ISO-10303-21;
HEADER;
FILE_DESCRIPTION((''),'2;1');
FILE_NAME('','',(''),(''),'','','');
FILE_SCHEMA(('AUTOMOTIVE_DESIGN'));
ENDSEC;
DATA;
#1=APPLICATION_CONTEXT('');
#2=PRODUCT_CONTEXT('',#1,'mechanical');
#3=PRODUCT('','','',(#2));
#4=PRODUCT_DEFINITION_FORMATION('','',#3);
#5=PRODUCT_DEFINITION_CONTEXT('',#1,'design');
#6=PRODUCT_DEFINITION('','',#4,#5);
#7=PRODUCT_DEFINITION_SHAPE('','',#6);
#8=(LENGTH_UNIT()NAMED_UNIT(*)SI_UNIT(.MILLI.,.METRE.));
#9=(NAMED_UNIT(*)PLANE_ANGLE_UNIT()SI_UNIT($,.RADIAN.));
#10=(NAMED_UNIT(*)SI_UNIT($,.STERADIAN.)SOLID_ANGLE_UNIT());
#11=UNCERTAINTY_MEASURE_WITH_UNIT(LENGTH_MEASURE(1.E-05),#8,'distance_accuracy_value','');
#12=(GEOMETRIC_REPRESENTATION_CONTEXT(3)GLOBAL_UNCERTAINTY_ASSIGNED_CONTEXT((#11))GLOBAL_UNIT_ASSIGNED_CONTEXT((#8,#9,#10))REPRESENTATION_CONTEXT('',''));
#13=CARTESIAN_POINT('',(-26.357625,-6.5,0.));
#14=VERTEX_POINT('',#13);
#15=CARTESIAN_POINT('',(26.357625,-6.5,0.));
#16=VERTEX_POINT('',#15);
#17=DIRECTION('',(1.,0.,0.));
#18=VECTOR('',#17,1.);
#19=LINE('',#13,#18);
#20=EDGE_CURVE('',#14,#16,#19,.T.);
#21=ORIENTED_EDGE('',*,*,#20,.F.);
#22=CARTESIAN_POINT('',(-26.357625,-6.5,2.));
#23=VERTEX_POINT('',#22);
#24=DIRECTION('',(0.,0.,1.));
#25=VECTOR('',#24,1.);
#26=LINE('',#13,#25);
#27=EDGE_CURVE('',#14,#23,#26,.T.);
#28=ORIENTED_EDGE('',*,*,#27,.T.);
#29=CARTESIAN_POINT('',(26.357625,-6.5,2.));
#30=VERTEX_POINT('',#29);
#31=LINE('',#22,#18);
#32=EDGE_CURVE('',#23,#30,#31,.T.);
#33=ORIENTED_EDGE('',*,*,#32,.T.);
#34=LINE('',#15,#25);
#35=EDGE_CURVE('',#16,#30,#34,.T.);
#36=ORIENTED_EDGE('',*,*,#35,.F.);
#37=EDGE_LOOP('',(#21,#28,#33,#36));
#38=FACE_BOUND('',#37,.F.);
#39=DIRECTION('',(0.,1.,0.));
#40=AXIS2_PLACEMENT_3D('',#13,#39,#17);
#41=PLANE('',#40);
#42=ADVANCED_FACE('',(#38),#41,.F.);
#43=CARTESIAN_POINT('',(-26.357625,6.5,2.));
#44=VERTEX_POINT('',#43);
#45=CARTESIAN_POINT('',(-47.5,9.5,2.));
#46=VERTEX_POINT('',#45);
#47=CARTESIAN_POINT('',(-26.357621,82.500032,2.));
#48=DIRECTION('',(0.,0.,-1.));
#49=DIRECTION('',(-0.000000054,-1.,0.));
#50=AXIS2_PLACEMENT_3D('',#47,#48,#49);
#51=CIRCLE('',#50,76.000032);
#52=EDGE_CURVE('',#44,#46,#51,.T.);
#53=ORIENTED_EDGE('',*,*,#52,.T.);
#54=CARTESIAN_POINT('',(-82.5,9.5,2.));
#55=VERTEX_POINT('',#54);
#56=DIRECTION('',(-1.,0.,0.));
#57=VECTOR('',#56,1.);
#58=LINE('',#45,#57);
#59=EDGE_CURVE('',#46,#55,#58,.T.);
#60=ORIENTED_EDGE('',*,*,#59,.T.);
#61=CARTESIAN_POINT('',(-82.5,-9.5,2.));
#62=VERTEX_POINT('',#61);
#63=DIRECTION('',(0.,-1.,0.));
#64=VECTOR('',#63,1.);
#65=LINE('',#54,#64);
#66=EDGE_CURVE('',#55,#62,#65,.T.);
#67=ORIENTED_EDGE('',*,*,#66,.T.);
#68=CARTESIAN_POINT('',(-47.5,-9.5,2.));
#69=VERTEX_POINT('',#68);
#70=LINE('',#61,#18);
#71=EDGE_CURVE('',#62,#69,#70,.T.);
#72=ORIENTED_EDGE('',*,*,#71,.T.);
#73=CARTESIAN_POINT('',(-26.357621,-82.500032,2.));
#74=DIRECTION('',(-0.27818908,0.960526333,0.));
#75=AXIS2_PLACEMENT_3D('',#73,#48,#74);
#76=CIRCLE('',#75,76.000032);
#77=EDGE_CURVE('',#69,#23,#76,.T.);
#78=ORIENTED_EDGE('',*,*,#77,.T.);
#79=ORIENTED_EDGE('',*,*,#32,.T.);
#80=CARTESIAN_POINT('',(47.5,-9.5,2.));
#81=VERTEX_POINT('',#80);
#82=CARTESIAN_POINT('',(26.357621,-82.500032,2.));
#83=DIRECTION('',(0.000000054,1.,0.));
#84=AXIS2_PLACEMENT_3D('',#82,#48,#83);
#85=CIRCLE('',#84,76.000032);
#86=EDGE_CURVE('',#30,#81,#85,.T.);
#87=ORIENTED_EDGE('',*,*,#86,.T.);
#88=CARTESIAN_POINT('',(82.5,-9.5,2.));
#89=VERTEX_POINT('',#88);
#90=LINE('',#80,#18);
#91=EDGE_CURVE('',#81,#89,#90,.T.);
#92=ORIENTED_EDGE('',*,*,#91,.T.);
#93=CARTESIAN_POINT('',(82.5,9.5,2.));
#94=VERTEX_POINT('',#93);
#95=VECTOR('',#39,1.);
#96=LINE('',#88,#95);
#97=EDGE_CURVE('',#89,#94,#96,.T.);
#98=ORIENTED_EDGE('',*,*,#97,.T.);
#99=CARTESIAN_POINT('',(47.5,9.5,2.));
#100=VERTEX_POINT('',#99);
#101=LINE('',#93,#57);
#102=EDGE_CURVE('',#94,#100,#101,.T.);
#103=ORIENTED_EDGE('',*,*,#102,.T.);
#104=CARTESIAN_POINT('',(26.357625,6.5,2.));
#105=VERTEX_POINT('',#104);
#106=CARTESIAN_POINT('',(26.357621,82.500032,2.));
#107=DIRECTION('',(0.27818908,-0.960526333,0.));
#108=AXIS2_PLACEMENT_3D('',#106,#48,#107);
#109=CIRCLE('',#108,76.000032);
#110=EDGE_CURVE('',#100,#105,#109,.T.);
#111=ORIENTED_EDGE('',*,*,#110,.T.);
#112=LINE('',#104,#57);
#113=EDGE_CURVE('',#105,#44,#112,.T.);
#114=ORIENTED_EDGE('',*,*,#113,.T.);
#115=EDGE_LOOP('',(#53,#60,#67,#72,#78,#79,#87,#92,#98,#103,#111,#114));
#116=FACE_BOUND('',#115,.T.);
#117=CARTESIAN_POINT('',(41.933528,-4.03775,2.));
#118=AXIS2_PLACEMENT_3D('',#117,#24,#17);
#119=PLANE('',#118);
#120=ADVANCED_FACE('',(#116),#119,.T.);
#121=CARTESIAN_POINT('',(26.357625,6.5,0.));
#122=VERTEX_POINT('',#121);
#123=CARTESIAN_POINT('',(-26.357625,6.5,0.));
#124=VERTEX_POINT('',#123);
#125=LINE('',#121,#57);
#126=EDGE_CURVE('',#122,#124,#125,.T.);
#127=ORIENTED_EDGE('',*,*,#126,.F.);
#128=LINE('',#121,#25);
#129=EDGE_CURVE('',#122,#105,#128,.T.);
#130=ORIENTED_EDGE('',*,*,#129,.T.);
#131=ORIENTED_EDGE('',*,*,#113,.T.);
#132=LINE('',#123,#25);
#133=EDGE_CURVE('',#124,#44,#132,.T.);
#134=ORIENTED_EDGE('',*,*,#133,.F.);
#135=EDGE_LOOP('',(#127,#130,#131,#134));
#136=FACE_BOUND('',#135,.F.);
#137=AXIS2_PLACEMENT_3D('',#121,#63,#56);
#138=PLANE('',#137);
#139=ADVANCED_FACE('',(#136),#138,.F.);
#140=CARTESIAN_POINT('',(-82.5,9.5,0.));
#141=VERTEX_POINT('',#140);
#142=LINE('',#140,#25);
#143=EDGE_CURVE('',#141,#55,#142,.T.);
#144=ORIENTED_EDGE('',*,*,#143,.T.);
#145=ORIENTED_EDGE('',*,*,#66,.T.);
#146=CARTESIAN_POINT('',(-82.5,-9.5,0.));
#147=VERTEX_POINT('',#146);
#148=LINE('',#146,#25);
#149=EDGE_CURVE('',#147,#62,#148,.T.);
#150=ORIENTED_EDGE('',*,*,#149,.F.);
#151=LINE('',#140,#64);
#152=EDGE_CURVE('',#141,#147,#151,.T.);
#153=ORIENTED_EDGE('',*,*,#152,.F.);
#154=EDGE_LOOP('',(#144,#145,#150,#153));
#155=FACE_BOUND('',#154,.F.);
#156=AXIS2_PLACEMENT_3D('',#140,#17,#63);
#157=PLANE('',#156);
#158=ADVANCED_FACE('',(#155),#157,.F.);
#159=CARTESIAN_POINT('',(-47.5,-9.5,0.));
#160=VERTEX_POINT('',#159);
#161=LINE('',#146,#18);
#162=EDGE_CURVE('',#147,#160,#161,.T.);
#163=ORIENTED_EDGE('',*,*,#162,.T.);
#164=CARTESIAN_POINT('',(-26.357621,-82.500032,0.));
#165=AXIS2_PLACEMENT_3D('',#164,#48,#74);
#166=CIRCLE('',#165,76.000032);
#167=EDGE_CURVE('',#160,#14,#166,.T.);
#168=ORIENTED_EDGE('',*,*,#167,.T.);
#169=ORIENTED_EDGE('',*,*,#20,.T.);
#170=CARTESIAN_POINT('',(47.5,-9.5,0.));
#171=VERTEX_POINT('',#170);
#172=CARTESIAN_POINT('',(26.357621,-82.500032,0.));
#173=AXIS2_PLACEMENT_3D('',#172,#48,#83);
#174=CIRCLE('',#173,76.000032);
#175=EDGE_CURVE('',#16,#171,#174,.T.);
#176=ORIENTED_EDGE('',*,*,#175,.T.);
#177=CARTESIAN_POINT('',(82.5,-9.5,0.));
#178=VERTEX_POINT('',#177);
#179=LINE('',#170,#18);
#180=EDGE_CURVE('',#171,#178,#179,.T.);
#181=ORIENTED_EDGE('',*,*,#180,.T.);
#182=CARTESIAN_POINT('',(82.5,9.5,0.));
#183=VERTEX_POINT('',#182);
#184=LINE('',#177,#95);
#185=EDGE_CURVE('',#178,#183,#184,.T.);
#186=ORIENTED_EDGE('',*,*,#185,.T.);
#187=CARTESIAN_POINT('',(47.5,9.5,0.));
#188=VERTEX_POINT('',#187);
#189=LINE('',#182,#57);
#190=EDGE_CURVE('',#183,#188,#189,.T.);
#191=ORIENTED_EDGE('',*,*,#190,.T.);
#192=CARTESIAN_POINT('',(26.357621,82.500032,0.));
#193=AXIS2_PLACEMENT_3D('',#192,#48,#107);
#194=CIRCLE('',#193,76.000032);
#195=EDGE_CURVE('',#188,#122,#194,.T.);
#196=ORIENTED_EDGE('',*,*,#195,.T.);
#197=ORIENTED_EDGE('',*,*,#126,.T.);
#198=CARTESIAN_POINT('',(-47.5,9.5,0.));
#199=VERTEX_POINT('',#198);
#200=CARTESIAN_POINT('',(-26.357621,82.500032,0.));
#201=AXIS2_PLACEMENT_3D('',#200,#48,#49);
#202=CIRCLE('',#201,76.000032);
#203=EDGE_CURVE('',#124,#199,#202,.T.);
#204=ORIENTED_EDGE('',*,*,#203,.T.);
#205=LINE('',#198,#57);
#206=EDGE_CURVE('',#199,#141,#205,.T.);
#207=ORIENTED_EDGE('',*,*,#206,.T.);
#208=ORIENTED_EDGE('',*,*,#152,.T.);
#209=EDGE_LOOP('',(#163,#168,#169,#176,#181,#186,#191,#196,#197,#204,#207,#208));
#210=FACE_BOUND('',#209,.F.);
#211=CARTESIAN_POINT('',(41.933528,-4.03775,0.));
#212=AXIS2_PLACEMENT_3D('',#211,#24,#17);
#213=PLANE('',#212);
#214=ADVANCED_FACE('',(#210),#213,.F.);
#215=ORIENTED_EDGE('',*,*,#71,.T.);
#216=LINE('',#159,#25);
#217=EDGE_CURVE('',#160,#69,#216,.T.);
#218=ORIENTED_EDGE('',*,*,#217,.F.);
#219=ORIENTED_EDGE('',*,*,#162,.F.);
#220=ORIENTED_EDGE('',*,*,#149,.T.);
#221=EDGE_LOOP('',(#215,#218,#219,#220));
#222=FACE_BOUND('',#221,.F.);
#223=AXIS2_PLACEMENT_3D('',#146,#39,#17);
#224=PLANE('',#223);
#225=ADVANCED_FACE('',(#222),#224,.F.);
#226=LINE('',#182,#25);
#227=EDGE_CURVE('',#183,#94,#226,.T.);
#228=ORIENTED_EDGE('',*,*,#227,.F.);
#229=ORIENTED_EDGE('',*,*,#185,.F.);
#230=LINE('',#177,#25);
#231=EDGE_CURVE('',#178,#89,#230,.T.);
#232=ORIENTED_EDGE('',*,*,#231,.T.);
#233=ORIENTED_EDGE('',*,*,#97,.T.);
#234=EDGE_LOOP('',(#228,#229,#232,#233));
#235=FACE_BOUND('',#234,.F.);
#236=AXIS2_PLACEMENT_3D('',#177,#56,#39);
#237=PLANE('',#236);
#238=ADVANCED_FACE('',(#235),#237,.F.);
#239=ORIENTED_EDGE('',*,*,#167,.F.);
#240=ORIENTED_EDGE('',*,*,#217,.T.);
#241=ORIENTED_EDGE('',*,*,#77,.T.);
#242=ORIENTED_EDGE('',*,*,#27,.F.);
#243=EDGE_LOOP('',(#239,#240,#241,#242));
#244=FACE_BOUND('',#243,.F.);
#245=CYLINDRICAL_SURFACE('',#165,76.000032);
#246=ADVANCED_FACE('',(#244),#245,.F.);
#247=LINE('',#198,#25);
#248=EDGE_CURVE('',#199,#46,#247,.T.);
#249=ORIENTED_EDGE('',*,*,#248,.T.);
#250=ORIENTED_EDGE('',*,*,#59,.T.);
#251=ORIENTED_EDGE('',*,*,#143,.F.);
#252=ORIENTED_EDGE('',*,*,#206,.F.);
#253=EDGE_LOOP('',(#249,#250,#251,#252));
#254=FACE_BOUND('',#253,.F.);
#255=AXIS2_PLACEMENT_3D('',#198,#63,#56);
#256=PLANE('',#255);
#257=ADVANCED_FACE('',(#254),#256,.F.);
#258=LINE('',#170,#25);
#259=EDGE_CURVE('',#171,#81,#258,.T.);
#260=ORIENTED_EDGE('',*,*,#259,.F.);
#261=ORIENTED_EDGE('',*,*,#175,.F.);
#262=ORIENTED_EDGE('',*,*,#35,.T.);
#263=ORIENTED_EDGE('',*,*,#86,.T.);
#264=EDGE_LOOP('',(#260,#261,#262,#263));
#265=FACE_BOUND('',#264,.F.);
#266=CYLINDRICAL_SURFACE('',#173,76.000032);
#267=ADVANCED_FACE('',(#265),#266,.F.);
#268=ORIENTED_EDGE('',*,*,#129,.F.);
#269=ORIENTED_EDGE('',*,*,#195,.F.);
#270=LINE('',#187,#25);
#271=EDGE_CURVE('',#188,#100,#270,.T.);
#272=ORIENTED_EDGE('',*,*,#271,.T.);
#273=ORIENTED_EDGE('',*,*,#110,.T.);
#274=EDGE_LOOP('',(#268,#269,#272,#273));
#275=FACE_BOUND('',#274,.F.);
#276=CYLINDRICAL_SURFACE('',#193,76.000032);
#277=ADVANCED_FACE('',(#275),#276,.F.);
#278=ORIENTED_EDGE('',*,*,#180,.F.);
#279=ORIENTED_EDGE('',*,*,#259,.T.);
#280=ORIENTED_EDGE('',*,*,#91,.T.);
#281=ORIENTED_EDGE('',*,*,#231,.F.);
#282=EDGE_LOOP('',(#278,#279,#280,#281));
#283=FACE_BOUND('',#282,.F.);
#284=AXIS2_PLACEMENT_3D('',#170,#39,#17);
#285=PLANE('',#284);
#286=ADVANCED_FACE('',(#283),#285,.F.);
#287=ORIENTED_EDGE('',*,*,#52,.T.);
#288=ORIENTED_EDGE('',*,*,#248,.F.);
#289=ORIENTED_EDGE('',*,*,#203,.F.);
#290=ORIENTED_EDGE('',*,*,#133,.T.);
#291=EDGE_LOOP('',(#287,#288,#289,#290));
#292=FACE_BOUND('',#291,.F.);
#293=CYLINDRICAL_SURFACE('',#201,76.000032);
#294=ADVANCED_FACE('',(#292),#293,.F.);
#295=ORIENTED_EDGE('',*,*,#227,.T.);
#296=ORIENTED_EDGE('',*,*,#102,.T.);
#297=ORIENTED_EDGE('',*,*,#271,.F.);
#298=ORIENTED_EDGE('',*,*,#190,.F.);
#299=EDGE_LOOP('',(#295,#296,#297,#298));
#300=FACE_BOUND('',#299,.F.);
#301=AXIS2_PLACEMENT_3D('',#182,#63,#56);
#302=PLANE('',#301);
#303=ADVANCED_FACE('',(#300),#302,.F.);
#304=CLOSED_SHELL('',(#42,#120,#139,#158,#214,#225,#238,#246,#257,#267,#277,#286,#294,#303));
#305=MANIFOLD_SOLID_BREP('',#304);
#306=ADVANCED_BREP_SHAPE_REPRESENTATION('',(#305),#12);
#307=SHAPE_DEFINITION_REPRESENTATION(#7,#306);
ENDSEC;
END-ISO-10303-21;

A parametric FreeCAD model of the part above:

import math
import FreeCAD as App
import Part
import Sketcher
Q = App.Units.Quantity

doc = App.newDocument("Part")
body = doc.addObject("PartDesign::Body", "Body")

# Sketch on XY plane
sketch1 = body.newObject("Sketcher::SketchObject", "Sketch")
sketch1.AttachmentSupport = (doc.getObject("XY_Plane"), [""])
sketch1.MapMode = "FlatFace"
sketch1.addGeometry([
    Part.ArcOfCircle(Part.Circle(App.Vector(26.357621, -82.500032, 0), App.Vector(0, 0, 1), 76.000032), math.radians(73.847847), math.radians(89.999997)),  # 0
    Part.LineSegment(App.Vector(47.5, -9.5, 0), App.Vector(82.5, -9.5, 0)),  # 1
    Part.LineSegment(App.Vector(82.5, -9.5, 0), App.Vector(82.5, 9.5, 0)),  # 2
    Part.LineSegment(App.Vector(82.5, 9.5, 0), App.Vector(47.5, 9.5, 0)),  # 3
    Part.ArcOfCircle(Part.Circle(App.Vector(26.357621, 82.500032, 0), App.Vector(0, 0, 1), 76.000032), math.radians(-89.999997), math.radians(-73.847847)),  # 4
    Part.LineSegment(App.Vector(26.357625, 6.5, 0), App.Vector(-26.357625, 6.5, 0)),  # 5
    Part.ArcOfCircle(Part.Circle(App.Vector(-26.357621, 82.500032, 0), App.Vector(0, 0, 1), 76.000032), math.radians(-106.152153), math.radians(-90.000003)),  # 6
    Part.LineSegment(App.Vector(-47.5, 9.5, 0), App.Vector(-82.5, 9.5, 0)),  # 7
    Part.LineSegment(App.Vector(-82.5, 9.5, 0), App.Vector(-82.5, -9.5, 0)),  # 8
    Part.LineSegment(App.Vector(-82.5, -9.5, 0), App.Vector(-47.5, -9.5, 0)),  # 9
    Part.ArcOfCircle(Part.Circle(App.Vector(-26.357621, -82.500032, 0), App.Vector(0, 0, 1), 76.000032), math.radians(90.000003), math.radians(106.152153)),  # 10
    Part.LineSegment(App.Vector(-26.357625, -6.5, 0), App.Vector(26.357625, -6.5, 0)),  # 11
], False)
sketch1.addConstraint([
    Sketcher.Constraint("Coincident", 0, 1, 1, 1),
    Sketcher.Constraint("Coincident", 1, 2, 2, 1),
    Sketcher.Constraint("Coincident", 2, 2, 3, 1),
    Sketcher.Constraint("Coincident", 3, 2, 4, 2),
    Sketcher.Constraint("Tangent", 4, 1, 5, 1),
    Sketcher.Constraint("Tangent", 5, 2, 6, 2),
    Sketcher.Constraint("Coincident", 6, 1, 7, 1),
    Sketcher.Constraint("Coincident", 7, 2, 8, 1),
    Sketcher.Constraint("Coincident", 8, 2, 9, 1),
    Sketcher.Constraint("Coincident", 9, 2, 10, 2),
    Sketcher.Constraint("Tangent", 10, 1, 11, 1),
    Sketcher.Constraint("Tangent", 11, 2, 0, 2),
    Sketcher.Constraint("Horizontal", 1),
    Sketcher.Constraint("Vertical", 2),
    Sketcher.Constraint("Horizontal", 3),
    Sketcher.Constraint("Horizontal", 5),
    Sketcher.Constraint("Horizontal", 7),
    Sketcher.Constraint("Vertical", 8),
    Sketcher.Constraint("Horizontal", 9),
    Sketcher.Constraint("Horizontal", 11),
    Sketcher.Constraint("Equal", 0, 4),
    Sketcher.Constraint("Equal", 4, 6),
    Sketcher.Constraint("Equal", 6, 10),
    Sketcher.Constraint("Symmetric", 0, 3, 6, 3, -1, 1),
    Sketcher.Constraint("Symmetric", 1, 2, 7, 2, -1, 1),
    Sketcher.Constraint("Symmetric", 3, 2, 9, 2, -1, 1),
    Sketcher.Constraint("Symmetric", 3, 2, 6, 1, -2),
    Sketcher.Constraint("DistanceX", 1, 1, 1, 2, Q("35 mm")),
    Sketcher.Constraint("DistanceY", 2, 1, 2, 2, Q("19 mm")),
    Sketcher.Constraint("DistanceY", 4, 1, 3, 2, Q("3 mm")),
    Sketcher.Constraint("DistanceX", 6, 1, 3, 2, Q("95 mm")),
    Sketcher.Constraint("Radius", 0, Q("76.000032 mm")),
])
pad1 = body.newObject("PartDesign::Pad", "Pad")
pad1.Profile = sketch1
pad1.Length = 2

doc.recompute()
